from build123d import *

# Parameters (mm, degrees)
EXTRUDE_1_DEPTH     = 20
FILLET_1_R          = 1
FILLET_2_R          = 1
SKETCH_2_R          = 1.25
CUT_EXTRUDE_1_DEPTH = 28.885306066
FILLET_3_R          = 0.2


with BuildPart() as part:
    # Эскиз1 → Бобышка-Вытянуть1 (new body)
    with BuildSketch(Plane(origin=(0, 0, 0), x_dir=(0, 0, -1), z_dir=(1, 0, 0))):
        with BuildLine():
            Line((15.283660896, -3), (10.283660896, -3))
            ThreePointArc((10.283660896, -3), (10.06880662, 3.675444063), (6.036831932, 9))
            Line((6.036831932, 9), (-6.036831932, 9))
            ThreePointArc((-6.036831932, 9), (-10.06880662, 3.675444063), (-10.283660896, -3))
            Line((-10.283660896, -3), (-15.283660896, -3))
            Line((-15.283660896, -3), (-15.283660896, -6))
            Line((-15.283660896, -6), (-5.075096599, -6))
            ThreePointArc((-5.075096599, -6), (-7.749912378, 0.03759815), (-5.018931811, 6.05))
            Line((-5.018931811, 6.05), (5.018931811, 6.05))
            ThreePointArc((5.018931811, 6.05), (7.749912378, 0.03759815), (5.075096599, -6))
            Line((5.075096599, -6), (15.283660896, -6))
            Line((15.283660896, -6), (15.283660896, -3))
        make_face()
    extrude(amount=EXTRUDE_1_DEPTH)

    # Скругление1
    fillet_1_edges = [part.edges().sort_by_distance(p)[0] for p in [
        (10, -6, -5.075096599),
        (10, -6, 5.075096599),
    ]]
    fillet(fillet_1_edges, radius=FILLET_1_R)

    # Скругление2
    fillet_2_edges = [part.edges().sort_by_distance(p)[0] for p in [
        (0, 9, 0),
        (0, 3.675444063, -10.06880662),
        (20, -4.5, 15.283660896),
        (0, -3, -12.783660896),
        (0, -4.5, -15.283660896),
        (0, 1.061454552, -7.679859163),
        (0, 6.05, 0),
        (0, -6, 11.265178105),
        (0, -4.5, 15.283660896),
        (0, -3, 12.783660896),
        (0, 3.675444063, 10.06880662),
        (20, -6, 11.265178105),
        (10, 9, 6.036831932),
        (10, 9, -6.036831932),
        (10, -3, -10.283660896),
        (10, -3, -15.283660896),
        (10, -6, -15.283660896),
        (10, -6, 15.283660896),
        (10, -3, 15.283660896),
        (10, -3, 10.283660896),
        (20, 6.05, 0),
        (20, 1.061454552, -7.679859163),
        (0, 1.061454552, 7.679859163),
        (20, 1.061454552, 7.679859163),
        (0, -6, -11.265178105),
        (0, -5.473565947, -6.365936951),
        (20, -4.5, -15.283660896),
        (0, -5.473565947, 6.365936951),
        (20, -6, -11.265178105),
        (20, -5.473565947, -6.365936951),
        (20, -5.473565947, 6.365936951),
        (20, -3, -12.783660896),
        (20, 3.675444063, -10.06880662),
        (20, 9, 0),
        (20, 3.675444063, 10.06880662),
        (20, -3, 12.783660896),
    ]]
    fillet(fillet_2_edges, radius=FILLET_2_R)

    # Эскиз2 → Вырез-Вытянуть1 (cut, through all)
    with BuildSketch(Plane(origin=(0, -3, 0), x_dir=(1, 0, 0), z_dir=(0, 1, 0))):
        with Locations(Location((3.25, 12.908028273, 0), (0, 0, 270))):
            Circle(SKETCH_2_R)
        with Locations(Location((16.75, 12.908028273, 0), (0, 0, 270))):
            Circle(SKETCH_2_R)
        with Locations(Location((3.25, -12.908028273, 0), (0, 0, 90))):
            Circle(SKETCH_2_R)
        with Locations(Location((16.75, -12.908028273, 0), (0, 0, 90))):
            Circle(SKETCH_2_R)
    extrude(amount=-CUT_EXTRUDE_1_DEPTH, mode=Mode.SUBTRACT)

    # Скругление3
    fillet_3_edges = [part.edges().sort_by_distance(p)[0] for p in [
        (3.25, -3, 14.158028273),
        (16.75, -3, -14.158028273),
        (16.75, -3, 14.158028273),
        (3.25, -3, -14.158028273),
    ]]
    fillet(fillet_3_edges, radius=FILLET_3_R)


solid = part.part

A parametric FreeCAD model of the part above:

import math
import FreeCAD as App
import Part
import Sketcher

V = App.Vector


def edges_at(feature, points):
    """Names of the edges that pass closest to the given points."""
    edges = feature.Shape.Edges
    near = lambda p: min(range(len(edges)), key=lambda i: edges[i].distToShape(Part.Vertex(*p))[0])
    return sorted({f"Edge{near(p) + 1}" for p in points})

doc = App.newDocument("Part")
body = doc.addObject("PartDesign::Body", "Body")

sketch1 = body.newObject("Sketcher::SketchObject", "Sketch")
sketch1.AttachmentSupport = (doc.getObject("YZ_Plane"), [""])
sketch1.MapMode = "FlatFace"
sketch1.addGeometry(Part.LineSegment(V(-3, -15.3, 0), V(-3, -10.3, 0)), False)
sketch1.addGeometry(Part.ArcOfCircle(Part.Circle(V(0, 0.3, 0), V(0, 0, 1), 11), math.radians(-106), math.radians(-35)), False)
sketch1.addGeometry(Part.LineSegment(V(9, -6, 0), V(9, 6, 0)), False)
sketch1.addGeometry(Part.ArcOfCircle(Part.Circle(V(0, -0.3, 0), V(0, 0, 1), 11), math.radians(35), math.radians(106)), False)
sketch1.addGeometry(Part.LineSegment(V(-3, 10.3, 0), V(-3, 15.3, 0)), False)
sketch1.addGeometry(Part.LineSegment(V(-3, 15.3, 0), V(-6, 15.3, 0)), False)
sketch1.addGeometry(Part.LineSegment(V(-6, 15.3, 0), V(-6, 5.1, 0)), False)
sketch1.addGeometry(Part.ArcOfCircle(Part.Circle(V(0, -0.3, 0), V(0, 0, 1), 8.1), math.radians(41), math.radians(138)), False)
sketch1.addGeometry(Part.LineSegment(V(6, 5, 0), V(6, -5, 0)), False)
sketch1.addGeometry(Part.ArcOfCircle(Part.Circle(V(0, 0.3, 0), V(0, 0, 1), 8.1), math.radians(-138), math.radians(-41)), False)
sketch1.addGeometry(Part.LineSegment(V(-6, -5.1, 0), V(-6, -15.3, 0)), False)
sketch1.addGeometry(Part.LineSegment(V(-6, -15.3, 0), V(-3, -15.3, 0)), False)
sketch1.addConstraint(Sketcher.Constraint("Coincident", 0, 2, 1, 1))
sketch1.addConstraint(Sketcher.Constraint("Coincident", 1, 2, 2, 1))
sketch1.addConstraint(Sketcher.Constraint("Coincident", 2, 2, 3, 1))
sketch1.addConstraint(Sketcher.Constraint("Coincident", 3, 2, 4, 1))
sketch1.addConstraint(Sketcher.Constraint("Coincident", 4, 2, 5, 1))
sketch1.addConstraint(Sketcher.Constraint("Coincident", 5, 2, 6, 1))
sketch1.addConstraint(Sketcher.Constraint("Coincident", 6, 2, 7, 2))
sketch1.addConstraint(Sketcher.Constraint("Coincident", 7, 1, 8, 1))
sketch1.addConstraint(Sketcher.Constraint("Coincident", 8, 2, 9, 2))
sketch1.addConstraint(Sketcher.Constraint("Coincident", 9, 1, 10, 1))
sketch1.addConstraint(Sketcher.Constraint("Coincident", 10, 2, 11, 1))
sketch1.addConstraint(Sketcher.Constraint("Coincident", 11, 2, 0, 1))
sketch1.addConstraint(Sketcher.Constraint("Vertical", 0))
sketch1.addConstraint(Sketcher.Constraint("Vertical", 2))
sketch1.addConstraint(Sketcher.Constraint("Vertical", 4))
sketch1.addConstraint(Sketcher.Constraint("Horizontal", 5))
sketch1.addConstraint(Sketcher.Constraint("Vertical", 6))
sketch1.addConstraint(Sketcher.Constraint("Vertical", 8))
sketch1.addConstraint(Sketcher.Constraint("Vertical", 10))
sketch1.addConstraint(Sketcher.Constraint("Horizontal", 11))
sketch1.addConstraint(Sketcher.Constraint("Coincident", 7, 3, 3, 3))
sketch1.addConstraint(Sketcher.Constraint("Coincident", 9, 3, 1, 3))
sketch1.addConstraint(Sketcher.Constraint("Equal", 1, 3))
sketch1.addConstraint(Sketcher.Constraint("Equal", 7, 9))
sketch1.addConstraint(Sketcher.Constraint("Symmetric", 1, 3, 3, 3, -1, 1))
sketch1.addConstraint(Sketcher.Constraint("Symmetric", 0, 2, 3, 2, -1))
sketch1.addConstraint(Sketcher.Constraint("Symmetric", 5, 2, 10, 2, -1))
sketch1.addConstraint(Sketcher.Constraint("DistanceX", 5, 2, 5, 1, 3.0))
sketch1.addConstraint(Sketcher.Constraint("DistanceY", 0, 1, 0, 2, 5.0))
sketch1.addConstraint(Sketcher.Constraint("DistanceX", 0, 2, -1, 1, 3.0))
sketch1.addConstraint(Sketcher.Constraint("DistanceX", -1, 1, 1, 2, 9.0))
sketch1.addConstraint(Sketcher.Constraint("DistanceX", -1, 1, 7, 1, 6.05))
sketch1.addConstraint(Sketcher.Constraint("Radius", 1, 11.016667))
sketch1.addConstraint(Sketcher.Constraint("Radius", 7, 8.066667))
sketch1.addConstraint(Sketcher.Constraint("DistanceY", 2, 1, 2, 2, 12.073664))
pad1 = body.newObject("PartDesign::Pad", "Pad")
pad1.Profile = sketch1
pad1.Length = 20
doc.recompute()

fillet = body.newObject("PartDesign::Fillet", "Fillet")
fillet.Base = (pad1, edges_at(pad1, [(10, -6, -5.075), (10, -6, 5.075)]))
fillet.Radius = 1
doc.recompute()

fillet2 = body.newObject("PartDesign::Fillet", "Fillet001")
fillet2.Base = (fillet, edges_at(fillet, [
    (0, 9, 0),
    (0, 3.675, -10.069),
    (20, -4.5, 15.284),
    (0, -3, -12.784),
    (0, -4.5, -15.284),
    (0, 1.061, -7.68),
    (0, 6.05, 0),
    (0, -6, 11.265),
    (0, -4.5, 15.284),
    (0, -3, 12.784),
    (0, 3.675, 10.069),
    (20, -6, 11.265),
    (10, 9, 6.037),
    (10, 9, -6.037),
    (10, -3, -10.284),
    (10, -3, -15.284),
    (10, -6, -15.284),
    (10, -6, 15.284),
    (10, -3, 15.284),
    (10, -3, 10.284),
    (20, 6.05, 0),
    (20, 1.061, -7.68),
    (0, 1.061, 7.68),
    (20, 1.061, 7.68),
    (0, -6, -11.265),
    (0, -5.474, -6.366),
    (20, -4.5, -15.284),
    (0, -5.474, 6.366),
    (20, -6, -11.265),
    (20, -5.474, -6.366),
    (20, -5.474, 6.366),
    (20, -3, -12.784),
    (20, 3.675, -10.069),
    (20, 9, 0),
    (20, 3.675, 10.069),
    (20, -3, 12.784),
]))
fillet2.Radius = 1

sketch2 = body.newObject("Sketcher::SketchObject", "Sketch001")
sketch2.AttachmentSupport = (doc.getObject("XZ_Plane"), [""])
sketch2.MapMode = "FlatFace"
sketch2.AttachmentOffset = App.Placement(V(0, 0, 3), App.Rotation())
sketch2.addGeometry(Part.Circle(V(3.2, -12.9, 0), V(0, 0, 1), 1.2), False)
sketch2.addGeometry(Part.Circle(V(16.8, -12.9, 0), V(0, 0, 1), 1.2), False)
sketch2.addGeometry(Part.Circle(V(3.2, 12.9, 0), V(0, 0, 1), 1.2), False)
sketch2.addGeometry(Part.Circle(V(16.8, 12.9, 0), V(0, 0, 1), 1.2), False)
sketch2.addConstraint(Sketcher.Constraint("Equal", 0, 1))
sketch2.addConstraint(Sketcher.Constraint("Equal", 1, 2))
sketch2.addConstraint(Sketcher.Constraint("Equal", 2, 3))
sketch2.addConstraint(Sketcher.Constraint("Symmetric", 0, 3, 2, 3, -1))
sketch2.addConstraint(Sketcher.Constraint("Symmetric", 1, 3, 3, 3, -1))
sketch2.addConstraint(Sketcher.Constraint("Horizontal", 0, 3, 1, 3))
sketch2.addConstraint(Sketcher.Constraint("Diameter", 0, 2.5))
sketch2.addConstraint(Sketcher.Constraint("DistanceX", 0, 3, 1, 3, 13.5))
sketch2.addConstraint(Sketcher.Constraint("DistanceX", -1, 1, 0, 3, 3.25))
sketch2.addConstraint(Sketcher.Constraint("DistanceY", 0, 3, -1, 1, 12.908028))
pocket1 = body.newObject("PartDesign::Pocket", "Pocket")
pocket1.Profile = sketch2
pocket1.Type = "ThroughAll"
pocket1.Reversed = True
doc.recompute()

fillet3 = body.newObject("PartDesign::Fillet", "Fillet002")
fillet3.Base = (pocket1, edges_at(pocket1, [
    (3.25, -3, 14.158),
    (16.75, -3, -14.158),
    (16.75, -3, 14.158),
    (3.25, -3, -14.158),
]))
fillet3.Radius = 0.2

doc.recompute()
